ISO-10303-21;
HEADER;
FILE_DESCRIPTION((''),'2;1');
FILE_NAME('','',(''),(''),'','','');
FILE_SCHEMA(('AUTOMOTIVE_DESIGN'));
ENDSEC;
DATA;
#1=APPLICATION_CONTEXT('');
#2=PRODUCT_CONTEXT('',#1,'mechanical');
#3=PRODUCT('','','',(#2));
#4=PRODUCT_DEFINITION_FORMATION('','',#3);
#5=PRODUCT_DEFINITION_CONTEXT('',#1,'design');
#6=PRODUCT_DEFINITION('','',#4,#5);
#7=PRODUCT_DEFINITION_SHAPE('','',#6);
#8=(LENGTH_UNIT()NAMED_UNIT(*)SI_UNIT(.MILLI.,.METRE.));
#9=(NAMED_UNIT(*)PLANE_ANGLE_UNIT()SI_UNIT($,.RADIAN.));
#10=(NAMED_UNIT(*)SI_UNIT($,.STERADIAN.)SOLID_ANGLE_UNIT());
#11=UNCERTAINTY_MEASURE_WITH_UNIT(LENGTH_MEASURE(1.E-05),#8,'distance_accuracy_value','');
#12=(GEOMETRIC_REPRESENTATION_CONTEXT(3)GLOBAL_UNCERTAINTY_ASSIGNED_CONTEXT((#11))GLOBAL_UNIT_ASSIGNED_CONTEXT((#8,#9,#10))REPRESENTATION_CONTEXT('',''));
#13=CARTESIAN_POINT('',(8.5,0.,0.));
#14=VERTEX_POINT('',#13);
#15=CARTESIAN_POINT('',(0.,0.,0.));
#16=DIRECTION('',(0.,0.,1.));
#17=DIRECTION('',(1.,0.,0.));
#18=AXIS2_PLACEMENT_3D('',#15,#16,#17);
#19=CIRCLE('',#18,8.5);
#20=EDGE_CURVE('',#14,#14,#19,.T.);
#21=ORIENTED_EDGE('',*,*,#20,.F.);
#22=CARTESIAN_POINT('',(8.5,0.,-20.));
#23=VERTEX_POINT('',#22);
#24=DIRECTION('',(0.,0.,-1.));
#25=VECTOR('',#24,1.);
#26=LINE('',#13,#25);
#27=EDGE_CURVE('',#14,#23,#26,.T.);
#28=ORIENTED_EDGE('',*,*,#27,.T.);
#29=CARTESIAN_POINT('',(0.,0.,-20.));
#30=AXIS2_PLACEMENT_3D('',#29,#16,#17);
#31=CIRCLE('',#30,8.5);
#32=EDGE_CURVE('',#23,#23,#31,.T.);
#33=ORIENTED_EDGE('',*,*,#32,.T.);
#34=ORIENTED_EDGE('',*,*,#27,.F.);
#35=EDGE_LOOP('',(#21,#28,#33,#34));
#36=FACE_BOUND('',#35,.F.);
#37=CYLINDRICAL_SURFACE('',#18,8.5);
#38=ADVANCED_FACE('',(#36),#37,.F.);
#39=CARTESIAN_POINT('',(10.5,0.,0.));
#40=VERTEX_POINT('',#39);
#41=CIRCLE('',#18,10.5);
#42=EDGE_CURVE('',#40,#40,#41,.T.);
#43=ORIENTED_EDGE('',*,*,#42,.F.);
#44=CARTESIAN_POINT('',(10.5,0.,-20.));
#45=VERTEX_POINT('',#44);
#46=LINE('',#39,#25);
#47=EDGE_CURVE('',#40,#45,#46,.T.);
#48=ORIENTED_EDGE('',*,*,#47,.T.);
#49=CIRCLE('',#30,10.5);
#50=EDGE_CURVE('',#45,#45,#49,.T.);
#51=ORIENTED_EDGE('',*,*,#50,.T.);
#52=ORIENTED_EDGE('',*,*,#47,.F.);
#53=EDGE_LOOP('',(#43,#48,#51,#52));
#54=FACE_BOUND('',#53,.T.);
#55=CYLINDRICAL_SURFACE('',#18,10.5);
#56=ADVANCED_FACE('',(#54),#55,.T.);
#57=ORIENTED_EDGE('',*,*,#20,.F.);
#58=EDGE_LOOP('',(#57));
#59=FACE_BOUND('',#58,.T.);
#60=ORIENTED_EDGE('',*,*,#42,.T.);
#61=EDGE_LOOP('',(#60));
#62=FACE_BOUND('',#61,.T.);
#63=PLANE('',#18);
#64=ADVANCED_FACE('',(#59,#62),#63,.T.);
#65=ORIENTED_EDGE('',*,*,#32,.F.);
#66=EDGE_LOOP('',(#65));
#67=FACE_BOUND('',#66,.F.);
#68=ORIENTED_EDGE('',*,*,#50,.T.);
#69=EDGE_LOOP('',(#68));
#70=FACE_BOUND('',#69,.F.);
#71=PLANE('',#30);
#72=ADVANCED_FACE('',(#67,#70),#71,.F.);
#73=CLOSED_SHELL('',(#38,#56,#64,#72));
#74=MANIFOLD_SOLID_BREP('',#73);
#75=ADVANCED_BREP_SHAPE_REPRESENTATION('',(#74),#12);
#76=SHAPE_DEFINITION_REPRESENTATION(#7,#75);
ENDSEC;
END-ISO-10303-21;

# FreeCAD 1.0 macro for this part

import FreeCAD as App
import Part
import Sketcher

V = App.Vector
Q = App.Units.Quantity

doc = App.newDocument("Part")
params = doc.addObject("Spreadsheet::Sheet", "Params")
for row, (alias, value) in enumerate([
    ("sketch1_diameter", "21 mm"),
    ("sketch1_diameter2", "17 mm"),
    ("pad1_length", "20 mm"),
], start=1):
    params.set(f"A{row}", alias)
    params.set(f"B{row}", "=" + value)
    params.setAlias(f"B{row}", alias)

body = doc.addObject("PartDesign::Body", "Body")

# Sketch on XY plane
sketch1 = doc.addObject("Sketcher::SketchObject", "Sketch")
body.addObject(sketch1)
sketch1.AttachmentSupport = (doc.XY_Plane, [""])
sketch1.MapMode = "FlatFace"
sketch1.addGeometry([
    Part.Circle(V(0, 0, 0), V(0, 0, 1), 10),
    Part.Circle(V(0, 0, 0), V(0, 0, 1), 8),
], False)
sketch1.addConstraint([
    Sketcher.Constraint("Coincident", 0, 3, -1, 1),
    Sketcher.Constraint("Coincident", 1, 3, -1, 1),
    Sketcher.Constraint("Diameter", 0, Q("21 mm")),
    Sketcher.Constraint("Diameter", 1, Q("17 mm")),
])
sketch1.setExpression("Constraints[2]", "Params.sketch1_diameter")
sketch1.setExpression("Constraints[3]", "Params.sketch1_diameter2")
pad1 = doc.addObject("PartDesign::Pad", "Pad")
body.addObject(pad1)
pad1.Profile = sketch1
pad1.setExpression("Length", "Params.pad1_length")
pad1.Reversed = True

doc.recompute()
